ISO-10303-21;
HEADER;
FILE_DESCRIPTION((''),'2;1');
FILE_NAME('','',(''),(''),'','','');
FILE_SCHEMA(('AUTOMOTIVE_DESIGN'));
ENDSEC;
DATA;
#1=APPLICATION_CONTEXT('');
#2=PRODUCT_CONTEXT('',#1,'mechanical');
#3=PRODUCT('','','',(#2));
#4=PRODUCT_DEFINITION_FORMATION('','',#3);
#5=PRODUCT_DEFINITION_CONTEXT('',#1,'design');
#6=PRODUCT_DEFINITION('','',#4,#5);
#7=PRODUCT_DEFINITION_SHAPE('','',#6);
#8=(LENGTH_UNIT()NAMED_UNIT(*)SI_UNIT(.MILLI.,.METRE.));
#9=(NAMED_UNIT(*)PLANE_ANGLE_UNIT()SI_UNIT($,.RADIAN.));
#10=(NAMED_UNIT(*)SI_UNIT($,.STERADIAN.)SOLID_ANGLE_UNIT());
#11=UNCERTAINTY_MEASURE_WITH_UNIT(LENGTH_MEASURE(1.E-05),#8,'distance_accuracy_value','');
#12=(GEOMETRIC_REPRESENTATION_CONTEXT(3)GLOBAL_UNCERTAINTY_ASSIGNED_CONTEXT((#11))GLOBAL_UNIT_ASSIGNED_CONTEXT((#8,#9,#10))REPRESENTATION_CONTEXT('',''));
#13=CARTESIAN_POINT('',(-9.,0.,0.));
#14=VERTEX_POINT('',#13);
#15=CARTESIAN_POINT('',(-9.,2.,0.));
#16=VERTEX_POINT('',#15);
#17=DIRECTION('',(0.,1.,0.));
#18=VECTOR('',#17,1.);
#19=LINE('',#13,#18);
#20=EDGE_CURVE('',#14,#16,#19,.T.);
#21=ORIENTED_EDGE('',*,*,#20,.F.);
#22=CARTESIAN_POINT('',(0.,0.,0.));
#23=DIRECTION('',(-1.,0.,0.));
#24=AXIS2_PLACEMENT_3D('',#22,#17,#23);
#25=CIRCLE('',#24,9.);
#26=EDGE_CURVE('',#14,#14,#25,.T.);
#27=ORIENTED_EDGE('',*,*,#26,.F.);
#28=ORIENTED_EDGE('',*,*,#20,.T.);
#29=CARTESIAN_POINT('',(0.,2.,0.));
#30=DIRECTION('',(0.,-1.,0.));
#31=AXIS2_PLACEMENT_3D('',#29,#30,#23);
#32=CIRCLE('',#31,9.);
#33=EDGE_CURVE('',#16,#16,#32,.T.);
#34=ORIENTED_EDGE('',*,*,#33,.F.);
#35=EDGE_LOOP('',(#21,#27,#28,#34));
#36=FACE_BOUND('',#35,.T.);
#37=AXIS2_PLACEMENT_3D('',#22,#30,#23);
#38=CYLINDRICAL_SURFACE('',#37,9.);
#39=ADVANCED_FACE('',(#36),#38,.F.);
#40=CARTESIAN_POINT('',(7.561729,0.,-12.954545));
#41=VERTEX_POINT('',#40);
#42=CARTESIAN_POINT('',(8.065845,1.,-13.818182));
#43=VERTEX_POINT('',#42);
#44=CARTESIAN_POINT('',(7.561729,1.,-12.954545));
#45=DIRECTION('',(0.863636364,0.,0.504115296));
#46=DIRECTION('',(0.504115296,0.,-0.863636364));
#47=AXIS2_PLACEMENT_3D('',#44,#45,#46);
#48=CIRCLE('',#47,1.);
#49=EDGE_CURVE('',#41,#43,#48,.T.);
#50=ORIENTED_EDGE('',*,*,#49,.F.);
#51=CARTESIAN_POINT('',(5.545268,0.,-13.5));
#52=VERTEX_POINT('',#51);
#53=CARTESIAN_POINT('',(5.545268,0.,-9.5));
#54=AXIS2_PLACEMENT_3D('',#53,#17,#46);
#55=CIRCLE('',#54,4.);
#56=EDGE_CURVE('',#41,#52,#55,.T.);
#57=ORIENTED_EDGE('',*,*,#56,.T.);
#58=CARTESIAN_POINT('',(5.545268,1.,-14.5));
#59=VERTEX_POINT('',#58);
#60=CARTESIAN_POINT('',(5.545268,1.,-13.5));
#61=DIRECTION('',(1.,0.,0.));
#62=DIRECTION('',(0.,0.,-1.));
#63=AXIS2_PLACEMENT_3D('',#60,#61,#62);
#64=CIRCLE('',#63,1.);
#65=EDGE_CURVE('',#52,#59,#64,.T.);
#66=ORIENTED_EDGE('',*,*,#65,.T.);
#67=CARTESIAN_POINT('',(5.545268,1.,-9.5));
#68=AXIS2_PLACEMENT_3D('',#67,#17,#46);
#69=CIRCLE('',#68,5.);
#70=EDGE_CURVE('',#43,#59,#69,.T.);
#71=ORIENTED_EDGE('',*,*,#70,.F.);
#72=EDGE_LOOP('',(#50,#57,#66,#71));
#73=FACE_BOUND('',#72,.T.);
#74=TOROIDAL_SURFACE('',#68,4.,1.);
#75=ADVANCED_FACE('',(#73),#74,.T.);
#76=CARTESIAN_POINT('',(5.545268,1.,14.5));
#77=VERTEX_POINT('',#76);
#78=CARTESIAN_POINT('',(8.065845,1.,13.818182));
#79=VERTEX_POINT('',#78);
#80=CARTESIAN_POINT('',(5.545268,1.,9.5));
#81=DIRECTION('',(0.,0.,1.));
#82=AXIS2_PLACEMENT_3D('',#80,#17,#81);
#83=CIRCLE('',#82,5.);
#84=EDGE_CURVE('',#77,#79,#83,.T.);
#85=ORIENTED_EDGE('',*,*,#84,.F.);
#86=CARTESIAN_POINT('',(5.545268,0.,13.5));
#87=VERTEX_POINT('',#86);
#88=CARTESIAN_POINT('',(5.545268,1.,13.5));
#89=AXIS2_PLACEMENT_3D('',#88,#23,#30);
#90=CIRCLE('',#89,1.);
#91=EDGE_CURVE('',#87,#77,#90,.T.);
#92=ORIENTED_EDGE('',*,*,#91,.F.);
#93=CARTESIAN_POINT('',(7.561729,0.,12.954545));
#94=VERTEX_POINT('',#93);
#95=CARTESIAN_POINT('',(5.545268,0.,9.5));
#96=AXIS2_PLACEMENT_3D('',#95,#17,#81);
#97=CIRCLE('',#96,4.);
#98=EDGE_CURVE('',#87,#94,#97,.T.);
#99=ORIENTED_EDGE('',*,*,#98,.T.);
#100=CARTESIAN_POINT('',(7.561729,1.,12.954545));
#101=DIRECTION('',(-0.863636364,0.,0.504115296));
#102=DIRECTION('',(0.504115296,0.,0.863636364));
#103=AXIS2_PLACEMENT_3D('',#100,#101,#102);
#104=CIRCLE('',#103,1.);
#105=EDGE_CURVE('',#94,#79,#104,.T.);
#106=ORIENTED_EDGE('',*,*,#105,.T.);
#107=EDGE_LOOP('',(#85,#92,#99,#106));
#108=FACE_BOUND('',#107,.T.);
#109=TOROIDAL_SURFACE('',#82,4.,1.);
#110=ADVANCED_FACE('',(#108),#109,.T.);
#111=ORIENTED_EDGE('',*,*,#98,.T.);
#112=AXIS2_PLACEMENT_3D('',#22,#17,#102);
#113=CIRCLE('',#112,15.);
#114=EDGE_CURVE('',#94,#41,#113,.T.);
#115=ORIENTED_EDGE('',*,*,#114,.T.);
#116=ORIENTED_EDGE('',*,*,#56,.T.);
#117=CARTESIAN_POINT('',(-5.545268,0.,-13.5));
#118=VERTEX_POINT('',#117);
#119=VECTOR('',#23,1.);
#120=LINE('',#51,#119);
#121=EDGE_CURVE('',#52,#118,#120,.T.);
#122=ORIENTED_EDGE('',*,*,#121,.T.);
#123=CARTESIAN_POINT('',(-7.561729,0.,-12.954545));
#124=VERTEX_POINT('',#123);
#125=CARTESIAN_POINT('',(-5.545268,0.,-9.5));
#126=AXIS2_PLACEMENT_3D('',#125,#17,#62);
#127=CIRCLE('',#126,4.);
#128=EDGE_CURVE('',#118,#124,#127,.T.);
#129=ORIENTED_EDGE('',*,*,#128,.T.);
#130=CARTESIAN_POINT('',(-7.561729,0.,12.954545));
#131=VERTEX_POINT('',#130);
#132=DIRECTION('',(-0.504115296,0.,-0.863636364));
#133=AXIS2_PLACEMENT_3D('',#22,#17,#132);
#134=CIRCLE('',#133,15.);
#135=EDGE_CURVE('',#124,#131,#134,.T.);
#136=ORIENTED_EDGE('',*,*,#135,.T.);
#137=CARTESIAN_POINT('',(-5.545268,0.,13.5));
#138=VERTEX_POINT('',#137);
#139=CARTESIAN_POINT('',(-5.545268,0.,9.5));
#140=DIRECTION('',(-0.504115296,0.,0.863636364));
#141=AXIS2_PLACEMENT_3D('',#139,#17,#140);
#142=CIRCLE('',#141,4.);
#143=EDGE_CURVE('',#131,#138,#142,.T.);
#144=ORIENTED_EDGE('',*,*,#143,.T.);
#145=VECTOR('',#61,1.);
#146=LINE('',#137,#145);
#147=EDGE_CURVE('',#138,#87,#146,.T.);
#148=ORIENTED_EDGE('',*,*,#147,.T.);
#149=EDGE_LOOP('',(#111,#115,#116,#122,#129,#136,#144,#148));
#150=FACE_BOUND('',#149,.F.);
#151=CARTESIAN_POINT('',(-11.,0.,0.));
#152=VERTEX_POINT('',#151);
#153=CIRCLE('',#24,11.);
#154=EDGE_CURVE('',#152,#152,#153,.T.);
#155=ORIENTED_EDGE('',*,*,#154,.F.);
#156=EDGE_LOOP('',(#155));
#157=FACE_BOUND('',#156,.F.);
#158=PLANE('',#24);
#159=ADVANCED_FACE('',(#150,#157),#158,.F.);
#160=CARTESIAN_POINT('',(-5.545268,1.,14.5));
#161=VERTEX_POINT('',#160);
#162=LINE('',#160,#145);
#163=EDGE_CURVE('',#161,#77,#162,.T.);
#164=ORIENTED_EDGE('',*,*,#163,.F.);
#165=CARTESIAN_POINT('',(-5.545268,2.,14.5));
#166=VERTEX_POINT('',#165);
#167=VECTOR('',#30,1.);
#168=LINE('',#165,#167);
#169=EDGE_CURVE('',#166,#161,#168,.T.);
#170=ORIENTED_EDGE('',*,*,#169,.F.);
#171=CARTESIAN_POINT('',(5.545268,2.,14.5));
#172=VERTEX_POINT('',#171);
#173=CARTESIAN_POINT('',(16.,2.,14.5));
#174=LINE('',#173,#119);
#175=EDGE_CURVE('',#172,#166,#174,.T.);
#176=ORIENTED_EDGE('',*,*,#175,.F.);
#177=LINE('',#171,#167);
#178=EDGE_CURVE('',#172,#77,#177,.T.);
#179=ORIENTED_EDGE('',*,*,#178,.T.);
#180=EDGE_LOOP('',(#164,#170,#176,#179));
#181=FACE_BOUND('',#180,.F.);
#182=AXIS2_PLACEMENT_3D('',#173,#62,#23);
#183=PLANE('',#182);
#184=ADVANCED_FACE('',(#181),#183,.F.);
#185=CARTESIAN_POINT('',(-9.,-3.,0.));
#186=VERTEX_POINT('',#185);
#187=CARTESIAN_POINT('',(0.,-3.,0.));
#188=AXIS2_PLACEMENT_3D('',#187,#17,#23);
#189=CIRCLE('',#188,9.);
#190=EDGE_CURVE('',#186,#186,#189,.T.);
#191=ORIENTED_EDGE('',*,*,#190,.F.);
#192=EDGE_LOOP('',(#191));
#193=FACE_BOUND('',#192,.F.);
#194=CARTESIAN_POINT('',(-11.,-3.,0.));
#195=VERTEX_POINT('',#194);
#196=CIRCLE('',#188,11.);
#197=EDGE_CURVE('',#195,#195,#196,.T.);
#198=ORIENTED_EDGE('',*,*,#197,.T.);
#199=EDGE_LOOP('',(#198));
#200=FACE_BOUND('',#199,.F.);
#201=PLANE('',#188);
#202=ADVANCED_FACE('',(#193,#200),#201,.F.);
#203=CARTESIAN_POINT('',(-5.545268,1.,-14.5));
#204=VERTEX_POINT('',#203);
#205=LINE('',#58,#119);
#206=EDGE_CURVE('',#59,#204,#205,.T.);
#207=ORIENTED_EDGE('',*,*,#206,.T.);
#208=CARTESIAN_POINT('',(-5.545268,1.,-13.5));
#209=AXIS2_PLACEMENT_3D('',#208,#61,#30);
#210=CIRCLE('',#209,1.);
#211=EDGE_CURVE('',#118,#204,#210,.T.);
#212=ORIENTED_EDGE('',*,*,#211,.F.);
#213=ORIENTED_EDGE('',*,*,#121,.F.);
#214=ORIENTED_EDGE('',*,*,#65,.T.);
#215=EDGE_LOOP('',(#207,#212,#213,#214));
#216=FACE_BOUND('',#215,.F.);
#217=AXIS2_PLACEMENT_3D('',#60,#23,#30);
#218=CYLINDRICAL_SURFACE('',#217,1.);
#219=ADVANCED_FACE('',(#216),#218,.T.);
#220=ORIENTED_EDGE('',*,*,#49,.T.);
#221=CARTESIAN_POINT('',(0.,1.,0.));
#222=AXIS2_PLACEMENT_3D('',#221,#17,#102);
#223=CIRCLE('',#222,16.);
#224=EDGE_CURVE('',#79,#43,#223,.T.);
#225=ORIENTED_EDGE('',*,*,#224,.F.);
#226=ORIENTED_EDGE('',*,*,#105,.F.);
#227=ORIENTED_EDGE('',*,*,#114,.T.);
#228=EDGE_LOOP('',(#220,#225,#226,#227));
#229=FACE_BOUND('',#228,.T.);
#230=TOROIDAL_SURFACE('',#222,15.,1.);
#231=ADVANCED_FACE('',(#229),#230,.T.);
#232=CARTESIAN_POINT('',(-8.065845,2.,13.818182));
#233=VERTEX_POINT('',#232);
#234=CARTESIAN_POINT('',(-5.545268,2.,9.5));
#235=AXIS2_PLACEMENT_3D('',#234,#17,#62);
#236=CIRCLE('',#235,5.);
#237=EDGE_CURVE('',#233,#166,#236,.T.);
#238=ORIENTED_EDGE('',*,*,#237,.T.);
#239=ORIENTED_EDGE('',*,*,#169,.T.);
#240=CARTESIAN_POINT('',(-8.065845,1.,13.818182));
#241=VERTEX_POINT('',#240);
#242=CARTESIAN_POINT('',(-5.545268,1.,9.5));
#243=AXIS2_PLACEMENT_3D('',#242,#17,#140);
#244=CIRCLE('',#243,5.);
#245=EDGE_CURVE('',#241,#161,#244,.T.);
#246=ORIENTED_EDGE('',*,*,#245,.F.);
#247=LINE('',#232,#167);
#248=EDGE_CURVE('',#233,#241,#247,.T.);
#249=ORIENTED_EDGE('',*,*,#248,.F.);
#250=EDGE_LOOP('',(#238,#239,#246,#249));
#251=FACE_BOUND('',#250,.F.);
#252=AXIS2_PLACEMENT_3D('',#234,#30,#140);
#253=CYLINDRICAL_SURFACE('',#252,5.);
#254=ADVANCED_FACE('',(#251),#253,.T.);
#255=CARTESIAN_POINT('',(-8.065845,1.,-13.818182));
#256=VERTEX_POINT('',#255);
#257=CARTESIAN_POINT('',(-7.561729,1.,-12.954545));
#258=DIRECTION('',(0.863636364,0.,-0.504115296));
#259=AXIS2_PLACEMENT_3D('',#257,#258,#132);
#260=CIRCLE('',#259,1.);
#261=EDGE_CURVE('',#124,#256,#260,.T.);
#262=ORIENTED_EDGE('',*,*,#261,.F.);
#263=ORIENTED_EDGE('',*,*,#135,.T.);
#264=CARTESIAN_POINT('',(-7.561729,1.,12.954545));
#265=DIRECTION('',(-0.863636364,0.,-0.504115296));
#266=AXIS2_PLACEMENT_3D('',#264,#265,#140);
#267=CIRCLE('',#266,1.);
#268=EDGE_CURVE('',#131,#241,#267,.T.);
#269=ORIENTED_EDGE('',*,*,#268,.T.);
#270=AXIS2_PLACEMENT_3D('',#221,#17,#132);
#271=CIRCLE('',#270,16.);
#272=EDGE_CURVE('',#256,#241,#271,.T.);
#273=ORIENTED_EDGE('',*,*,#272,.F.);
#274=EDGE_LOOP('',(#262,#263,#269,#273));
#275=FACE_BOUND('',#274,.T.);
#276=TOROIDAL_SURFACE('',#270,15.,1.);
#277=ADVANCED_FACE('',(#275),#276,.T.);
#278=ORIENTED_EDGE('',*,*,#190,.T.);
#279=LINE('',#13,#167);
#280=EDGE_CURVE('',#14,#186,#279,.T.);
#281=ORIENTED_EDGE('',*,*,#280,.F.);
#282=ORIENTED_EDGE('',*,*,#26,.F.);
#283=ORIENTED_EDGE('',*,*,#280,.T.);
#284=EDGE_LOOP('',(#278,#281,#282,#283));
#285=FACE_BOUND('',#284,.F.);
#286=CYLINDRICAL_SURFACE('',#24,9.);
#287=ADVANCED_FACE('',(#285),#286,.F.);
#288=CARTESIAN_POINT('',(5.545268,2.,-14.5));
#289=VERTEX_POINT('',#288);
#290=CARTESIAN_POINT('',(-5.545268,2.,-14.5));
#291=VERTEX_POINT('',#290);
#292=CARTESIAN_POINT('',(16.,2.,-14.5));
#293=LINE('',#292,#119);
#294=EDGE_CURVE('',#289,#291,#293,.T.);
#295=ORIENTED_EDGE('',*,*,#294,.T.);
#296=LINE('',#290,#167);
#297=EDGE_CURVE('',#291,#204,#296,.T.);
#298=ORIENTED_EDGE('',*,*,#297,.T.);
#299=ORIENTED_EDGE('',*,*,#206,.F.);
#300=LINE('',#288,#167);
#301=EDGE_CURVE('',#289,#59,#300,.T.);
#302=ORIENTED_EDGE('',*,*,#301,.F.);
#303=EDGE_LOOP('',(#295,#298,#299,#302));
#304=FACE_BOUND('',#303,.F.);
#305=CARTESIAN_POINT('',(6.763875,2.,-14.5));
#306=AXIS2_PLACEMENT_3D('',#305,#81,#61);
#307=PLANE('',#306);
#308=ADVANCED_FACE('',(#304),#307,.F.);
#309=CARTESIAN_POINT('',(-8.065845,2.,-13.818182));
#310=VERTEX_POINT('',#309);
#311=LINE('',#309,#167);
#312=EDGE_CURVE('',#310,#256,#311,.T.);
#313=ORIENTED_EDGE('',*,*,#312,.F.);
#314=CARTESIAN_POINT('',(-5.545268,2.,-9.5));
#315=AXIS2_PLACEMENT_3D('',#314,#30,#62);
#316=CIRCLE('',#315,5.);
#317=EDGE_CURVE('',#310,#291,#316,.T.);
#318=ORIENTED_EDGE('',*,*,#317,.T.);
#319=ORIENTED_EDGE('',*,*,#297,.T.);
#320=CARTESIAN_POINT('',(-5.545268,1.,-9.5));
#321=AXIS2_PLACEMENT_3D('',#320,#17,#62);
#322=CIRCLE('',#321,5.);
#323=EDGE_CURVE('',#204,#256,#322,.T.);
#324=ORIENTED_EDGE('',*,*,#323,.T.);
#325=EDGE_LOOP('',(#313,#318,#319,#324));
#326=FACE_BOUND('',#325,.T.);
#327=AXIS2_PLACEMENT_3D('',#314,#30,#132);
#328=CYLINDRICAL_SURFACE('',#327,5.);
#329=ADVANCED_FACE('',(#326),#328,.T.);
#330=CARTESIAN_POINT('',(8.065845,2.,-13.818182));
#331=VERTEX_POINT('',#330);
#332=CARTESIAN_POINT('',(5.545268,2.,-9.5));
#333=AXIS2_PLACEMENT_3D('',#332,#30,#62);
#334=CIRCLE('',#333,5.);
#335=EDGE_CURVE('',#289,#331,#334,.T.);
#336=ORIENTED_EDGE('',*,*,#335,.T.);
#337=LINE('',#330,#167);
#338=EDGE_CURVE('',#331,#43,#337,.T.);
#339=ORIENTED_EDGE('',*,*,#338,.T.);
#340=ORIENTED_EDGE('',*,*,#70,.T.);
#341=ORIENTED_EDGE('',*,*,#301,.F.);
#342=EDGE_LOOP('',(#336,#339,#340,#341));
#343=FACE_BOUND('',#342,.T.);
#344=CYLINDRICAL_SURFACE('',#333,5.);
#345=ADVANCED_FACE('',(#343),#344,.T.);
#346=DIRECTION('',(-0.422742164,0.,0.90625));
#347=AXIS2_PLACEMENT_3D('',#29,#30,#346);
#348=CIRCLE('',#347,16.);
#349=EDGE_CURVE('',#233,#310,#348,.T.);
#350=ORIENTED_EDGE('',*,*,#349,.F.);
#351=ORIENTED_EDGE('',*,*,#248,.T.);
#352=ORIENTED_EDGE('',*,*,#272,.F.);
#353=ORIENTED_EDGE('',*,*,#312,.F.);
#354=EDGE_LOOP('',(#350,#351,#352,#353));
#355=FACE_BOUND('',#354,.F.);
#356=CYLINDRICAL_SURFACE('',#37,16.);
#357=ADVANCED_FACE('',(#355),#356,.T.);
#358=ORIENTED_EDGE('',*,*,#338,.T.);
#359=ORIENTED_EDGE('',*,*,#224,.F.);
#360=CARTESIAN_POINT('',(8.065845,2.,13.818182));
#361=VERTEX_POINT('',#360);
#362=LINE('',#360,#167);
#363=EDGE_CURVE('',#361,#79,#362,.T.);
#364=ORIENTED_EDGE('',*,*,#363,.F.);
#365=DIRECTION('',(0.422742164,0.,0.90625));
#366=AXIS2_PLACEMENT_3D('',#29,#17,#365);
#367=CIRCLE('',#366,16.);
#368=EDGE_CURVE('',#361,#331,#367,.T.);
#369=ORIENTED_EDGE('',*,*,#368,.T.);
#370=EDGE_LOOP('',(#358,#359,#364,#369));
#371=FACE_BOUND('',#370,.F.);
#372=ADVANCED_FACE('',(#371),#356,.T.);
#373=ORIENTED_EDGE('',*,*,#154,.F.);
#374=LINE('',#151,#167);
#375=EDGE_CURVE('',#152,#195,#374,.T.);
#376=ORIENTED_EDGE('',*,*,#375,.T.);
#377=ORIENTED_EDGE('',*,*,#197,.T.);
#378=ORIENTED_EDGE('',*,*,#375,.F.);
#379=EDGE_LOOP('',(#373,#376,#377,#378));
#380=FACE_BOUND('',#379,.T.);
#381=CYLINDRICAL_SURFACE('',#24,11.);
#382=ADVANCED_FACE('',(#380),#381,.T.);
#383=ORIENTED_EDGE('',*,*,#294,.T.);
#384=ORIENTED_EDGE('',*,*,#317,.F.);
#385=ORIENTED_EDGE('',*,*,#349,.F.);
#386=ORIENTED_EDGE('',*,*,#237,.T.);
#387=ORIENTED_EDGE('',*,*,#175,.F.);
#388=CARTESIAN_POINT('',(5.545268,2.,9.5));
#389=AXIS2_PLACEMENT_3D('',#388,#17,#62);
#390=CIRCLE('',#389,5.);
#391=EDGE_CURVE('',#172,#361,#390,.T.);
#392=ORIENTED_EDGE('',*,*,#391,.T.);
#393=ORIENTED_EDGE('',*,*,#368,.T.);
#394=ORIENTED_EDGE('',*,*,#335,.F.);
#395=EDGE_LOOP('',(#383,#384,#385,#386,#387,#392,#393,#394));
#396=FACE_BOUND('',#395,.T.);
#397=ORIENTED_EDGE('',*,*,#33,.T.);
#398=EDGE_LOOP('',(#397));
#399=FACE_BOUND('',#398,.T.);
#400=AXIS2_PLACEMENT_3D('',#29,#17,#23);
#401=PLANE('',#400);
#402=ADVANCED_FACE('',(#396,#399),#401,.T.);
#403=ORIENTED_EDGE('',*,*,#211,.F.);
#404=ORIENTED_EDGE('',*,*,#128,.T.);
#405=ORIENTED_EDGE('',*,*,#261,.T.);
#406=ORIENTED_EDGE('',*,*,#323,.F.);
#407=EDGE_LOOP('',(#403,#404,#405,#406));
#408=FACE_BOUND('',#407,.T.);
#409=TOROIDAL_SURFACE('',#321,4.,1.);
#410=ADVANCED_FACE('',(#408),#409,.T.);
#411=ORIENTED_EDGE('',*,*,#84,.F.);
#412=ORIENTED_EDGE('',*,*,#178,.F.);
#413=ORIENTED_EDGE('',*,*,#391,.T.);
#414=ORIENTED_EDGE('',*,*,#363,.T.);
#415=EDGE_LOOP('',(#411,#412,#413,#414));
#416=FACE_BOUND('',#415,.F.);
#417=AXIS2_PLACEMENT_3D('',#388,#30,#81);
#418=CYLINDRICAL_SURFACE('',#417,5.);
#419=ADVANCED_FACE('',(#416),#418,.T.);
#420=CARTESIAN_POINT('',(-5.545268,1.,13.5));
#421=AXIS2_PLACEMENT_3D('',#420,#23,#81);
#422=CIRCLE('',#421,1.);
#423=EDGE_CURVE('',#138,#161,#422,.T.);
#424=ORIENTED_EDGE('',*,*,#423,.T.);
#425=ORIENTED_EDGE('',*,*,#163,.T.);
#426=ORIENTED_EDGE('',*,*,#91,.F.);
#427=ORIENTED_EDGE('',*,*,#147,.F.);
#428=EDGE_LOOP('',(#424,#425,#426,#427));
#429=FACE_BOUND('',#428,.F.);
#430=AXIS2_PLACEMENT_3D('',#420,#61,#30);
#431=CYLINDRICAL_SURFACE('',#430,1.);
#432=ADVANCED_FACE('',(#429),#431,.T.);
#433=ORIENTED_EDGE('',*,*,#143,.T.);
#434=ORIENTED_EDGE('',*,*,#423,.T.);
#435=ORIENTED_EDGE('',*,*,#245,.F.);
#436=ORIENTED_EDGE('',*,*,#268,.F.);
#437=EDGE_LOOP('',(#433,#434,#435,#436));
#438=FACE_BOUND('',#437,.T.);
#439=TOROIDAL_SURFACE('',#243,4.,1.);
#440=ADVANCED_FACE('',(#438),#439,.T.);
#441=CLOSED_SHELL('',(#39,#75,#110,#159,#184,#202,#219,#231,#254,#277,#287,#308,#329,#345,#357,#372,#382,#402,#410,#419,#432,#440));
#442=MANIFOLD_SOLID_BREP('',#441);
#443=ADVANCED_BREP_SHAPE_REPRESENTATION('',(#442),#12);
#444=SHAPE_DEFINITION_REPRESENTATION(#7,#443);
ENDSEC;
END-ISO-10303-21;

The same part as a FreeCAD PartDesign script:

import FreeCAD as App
import Part
import Sketcher

V = App.Vector


def edges_at(feature, points):
    """Names of the edges that pass closest to the given points."""
    edges = feature.Shape.Edges
    near = lambda p: min(range(len(edges)), key=lambda i: edges[i].distToShape(Part.Vertex(*p))[0])
    return sorted({f"Edge{near(p) + 1}" for p in points})


def add_polygon(sketch, points):
    """Adds a closed chain of lines whose ends are joined by coincident constraints."""
    first, n = sketch.GeometryCount, len(points)
    for a, b in zip(points, points[1:] + points[:1]):
        sketch.addGeometry(Part.LineSegment(App.Vector(*a, 0), App.Vector(*b, 0)), False)
    for i in range(n):
        sketch.addConstraint(Sketcher.Constraint("Coincident", first + i, 2, first + (i + 1) % n, 1))

doc = App.newDocument("Part")
body = doc.addObject("PartDesign::Body", "Body")

# Sketch on XZ plane
sketch1 = body.newObject("Sketcher::SketchObject", "Sketch")
sketch1.AttachmentSupport = (doc.getObject("XZ_Plane"), [""])
sketch1.MapMode = "FlatFace"
sketch1.addGeometry(Part.Circle(V(0, 0, 0), V(0, 0, 1), 16), False)
sketch1.addConstraint([
    Sketcher.Constraint("Coincident", 0, 3, -1, 1),
    Sketcher.Constraint("Diameter", 0, 32.0),
])
pad1 = body.newObject("PartDesign::Pad", "Pad")
pad1.Profile = sketch1
pad1.Length = 2
pad1.Reversed = True

# Sketch on XZ plane
sketch2 = body.newObject("Sketcher::SketchObject", "Sketch001")
sketch2.AttachmentSupport = (doc.getObject("XZ_Plane"), [""])
sketch2.MapMode = "FlatFace"
sketch2.addGeometry(Part.Circle(V(0, 0, 0), V(0, 0, 1), 11), False)
sketch2.addConstraint([
    Sketcher.Constraint("Coincident", 0, 3, -1, 1),
    Sketcher.Constraint("Diameter", 0, 22.0),
])
pad2 = body.newObject("PartDesign::Pad", "Pad001")
pad2.Profile = sketch2
pad2.Length = 3

# Sketch on XZ plane
sketch3 = body.newObject("Sketcher::SketchObject", "Sketch002")
sketch3.AttachmentSupport = (doc.getObject("XZ_Plane"), [""])
sketch3.MapMode = "FlatFace"
sketch3.addGeometry(Part.Circle(V(0, 0, 0), V(0, 0, 1), 9), False)
sketch3.addConstraint([
    Sketcher.Constraint("Coincident", 0, 3, -1, 1),
    Sketcher.Constraint("Diameter", 0, 18.0),
])
pocket1 = body.newObject("PartDesign::Pocket", "Pocket")
pocket1.Profile = sketch3
pocket1.Type = "ThroughAll"
pocket1.Midplane = True

# Sketch on XZ plane
sketch4 = body.newObject("Sketcher::SketchObject", "Sketch003")
sketch4.AttachmentSupport = (doc.getObject("XZ_Plane"), [""])
sketch4.MapMode = "FlatFace"
sketch4.AttachmentOffset = App.Placement(V(0, 0, -2), App.Rotation())
add_polygon(sketch4, [(18, -16), (-18, -16), (-18, 16), (18, 16)])  # lines 0-3
add_polygon(sketch4, [(16, -14), (16, 14), (-16, 14), (-16, -14)])  # lines 4-7
sketch4.addConstraint([
    Sketcher.Constraint("Horizontal", 0),
    Sketcher.Constraint("Vertical", 1),
    Sketcher.Constraint("Horizontal", 2),
    Sketcher.Constraint("Vertical", 3),
    Sketcher.Constraint("Vertical", 4),
    Sketcher.Constraint("Horizontal", 5),
    Sketcher.Constraint("Vertical", 6),
    Sketcher.Constraint("Horizontal", 7),
    Sketcher.Constraint("Symmetric", 0, 2, 2, 2, -1, 1),
    Sketcher.Constraint("Symmetric", 4, 2, 6, 2, -1, 1),
    Sketcher.Constraint("Equal", 7, 1),
    Sketcher.Constraint("DistanceY", 4, 1, 4, 2, 29.0),
    Sketcher.Constraint("DistanceX", 0, 2, 0, 1, 35.0),
    Sketcher.Constraint("DistanceX", 5, 2, 5, 1, 32.0),
])
pocket2 = body.newObject("PartDesign::Pocket", "Pocket001")
pocket2.Profile = sketch4
pocket2.Length = 2
pocket2.Reversed = True
doc.recompute()

fillet = body.newObject("PartDesign::Fillet", "Fillet")
fillet.Base = (pocket2, edges_at(pocket2, [
    (-6.764, 1, 14.5),
    (6.764, 1, 14.5),
    (-6.764, 1, -14.5),
    (6.764, 1, -14.5),
]))
fillet.Radius = 5
doc.recompute()

fillet2 = body.newObject("PartDesign::Fillet", "Fillet001")
fillet2.Base = (fillet, edges_at(fillet, [
    (-6.851, 0, 14.326),
    (6.851, 0, 14.326),
    (0, 0, 14.5),
    (-16, 0, 0),
    (16, 0, 0),
    (-6.851, 0, -14.326),
    (6.851, 0, -14.326),
    (0, 0, -14.5),
]))
fillet2.Radius = 1

doc.recompute()
